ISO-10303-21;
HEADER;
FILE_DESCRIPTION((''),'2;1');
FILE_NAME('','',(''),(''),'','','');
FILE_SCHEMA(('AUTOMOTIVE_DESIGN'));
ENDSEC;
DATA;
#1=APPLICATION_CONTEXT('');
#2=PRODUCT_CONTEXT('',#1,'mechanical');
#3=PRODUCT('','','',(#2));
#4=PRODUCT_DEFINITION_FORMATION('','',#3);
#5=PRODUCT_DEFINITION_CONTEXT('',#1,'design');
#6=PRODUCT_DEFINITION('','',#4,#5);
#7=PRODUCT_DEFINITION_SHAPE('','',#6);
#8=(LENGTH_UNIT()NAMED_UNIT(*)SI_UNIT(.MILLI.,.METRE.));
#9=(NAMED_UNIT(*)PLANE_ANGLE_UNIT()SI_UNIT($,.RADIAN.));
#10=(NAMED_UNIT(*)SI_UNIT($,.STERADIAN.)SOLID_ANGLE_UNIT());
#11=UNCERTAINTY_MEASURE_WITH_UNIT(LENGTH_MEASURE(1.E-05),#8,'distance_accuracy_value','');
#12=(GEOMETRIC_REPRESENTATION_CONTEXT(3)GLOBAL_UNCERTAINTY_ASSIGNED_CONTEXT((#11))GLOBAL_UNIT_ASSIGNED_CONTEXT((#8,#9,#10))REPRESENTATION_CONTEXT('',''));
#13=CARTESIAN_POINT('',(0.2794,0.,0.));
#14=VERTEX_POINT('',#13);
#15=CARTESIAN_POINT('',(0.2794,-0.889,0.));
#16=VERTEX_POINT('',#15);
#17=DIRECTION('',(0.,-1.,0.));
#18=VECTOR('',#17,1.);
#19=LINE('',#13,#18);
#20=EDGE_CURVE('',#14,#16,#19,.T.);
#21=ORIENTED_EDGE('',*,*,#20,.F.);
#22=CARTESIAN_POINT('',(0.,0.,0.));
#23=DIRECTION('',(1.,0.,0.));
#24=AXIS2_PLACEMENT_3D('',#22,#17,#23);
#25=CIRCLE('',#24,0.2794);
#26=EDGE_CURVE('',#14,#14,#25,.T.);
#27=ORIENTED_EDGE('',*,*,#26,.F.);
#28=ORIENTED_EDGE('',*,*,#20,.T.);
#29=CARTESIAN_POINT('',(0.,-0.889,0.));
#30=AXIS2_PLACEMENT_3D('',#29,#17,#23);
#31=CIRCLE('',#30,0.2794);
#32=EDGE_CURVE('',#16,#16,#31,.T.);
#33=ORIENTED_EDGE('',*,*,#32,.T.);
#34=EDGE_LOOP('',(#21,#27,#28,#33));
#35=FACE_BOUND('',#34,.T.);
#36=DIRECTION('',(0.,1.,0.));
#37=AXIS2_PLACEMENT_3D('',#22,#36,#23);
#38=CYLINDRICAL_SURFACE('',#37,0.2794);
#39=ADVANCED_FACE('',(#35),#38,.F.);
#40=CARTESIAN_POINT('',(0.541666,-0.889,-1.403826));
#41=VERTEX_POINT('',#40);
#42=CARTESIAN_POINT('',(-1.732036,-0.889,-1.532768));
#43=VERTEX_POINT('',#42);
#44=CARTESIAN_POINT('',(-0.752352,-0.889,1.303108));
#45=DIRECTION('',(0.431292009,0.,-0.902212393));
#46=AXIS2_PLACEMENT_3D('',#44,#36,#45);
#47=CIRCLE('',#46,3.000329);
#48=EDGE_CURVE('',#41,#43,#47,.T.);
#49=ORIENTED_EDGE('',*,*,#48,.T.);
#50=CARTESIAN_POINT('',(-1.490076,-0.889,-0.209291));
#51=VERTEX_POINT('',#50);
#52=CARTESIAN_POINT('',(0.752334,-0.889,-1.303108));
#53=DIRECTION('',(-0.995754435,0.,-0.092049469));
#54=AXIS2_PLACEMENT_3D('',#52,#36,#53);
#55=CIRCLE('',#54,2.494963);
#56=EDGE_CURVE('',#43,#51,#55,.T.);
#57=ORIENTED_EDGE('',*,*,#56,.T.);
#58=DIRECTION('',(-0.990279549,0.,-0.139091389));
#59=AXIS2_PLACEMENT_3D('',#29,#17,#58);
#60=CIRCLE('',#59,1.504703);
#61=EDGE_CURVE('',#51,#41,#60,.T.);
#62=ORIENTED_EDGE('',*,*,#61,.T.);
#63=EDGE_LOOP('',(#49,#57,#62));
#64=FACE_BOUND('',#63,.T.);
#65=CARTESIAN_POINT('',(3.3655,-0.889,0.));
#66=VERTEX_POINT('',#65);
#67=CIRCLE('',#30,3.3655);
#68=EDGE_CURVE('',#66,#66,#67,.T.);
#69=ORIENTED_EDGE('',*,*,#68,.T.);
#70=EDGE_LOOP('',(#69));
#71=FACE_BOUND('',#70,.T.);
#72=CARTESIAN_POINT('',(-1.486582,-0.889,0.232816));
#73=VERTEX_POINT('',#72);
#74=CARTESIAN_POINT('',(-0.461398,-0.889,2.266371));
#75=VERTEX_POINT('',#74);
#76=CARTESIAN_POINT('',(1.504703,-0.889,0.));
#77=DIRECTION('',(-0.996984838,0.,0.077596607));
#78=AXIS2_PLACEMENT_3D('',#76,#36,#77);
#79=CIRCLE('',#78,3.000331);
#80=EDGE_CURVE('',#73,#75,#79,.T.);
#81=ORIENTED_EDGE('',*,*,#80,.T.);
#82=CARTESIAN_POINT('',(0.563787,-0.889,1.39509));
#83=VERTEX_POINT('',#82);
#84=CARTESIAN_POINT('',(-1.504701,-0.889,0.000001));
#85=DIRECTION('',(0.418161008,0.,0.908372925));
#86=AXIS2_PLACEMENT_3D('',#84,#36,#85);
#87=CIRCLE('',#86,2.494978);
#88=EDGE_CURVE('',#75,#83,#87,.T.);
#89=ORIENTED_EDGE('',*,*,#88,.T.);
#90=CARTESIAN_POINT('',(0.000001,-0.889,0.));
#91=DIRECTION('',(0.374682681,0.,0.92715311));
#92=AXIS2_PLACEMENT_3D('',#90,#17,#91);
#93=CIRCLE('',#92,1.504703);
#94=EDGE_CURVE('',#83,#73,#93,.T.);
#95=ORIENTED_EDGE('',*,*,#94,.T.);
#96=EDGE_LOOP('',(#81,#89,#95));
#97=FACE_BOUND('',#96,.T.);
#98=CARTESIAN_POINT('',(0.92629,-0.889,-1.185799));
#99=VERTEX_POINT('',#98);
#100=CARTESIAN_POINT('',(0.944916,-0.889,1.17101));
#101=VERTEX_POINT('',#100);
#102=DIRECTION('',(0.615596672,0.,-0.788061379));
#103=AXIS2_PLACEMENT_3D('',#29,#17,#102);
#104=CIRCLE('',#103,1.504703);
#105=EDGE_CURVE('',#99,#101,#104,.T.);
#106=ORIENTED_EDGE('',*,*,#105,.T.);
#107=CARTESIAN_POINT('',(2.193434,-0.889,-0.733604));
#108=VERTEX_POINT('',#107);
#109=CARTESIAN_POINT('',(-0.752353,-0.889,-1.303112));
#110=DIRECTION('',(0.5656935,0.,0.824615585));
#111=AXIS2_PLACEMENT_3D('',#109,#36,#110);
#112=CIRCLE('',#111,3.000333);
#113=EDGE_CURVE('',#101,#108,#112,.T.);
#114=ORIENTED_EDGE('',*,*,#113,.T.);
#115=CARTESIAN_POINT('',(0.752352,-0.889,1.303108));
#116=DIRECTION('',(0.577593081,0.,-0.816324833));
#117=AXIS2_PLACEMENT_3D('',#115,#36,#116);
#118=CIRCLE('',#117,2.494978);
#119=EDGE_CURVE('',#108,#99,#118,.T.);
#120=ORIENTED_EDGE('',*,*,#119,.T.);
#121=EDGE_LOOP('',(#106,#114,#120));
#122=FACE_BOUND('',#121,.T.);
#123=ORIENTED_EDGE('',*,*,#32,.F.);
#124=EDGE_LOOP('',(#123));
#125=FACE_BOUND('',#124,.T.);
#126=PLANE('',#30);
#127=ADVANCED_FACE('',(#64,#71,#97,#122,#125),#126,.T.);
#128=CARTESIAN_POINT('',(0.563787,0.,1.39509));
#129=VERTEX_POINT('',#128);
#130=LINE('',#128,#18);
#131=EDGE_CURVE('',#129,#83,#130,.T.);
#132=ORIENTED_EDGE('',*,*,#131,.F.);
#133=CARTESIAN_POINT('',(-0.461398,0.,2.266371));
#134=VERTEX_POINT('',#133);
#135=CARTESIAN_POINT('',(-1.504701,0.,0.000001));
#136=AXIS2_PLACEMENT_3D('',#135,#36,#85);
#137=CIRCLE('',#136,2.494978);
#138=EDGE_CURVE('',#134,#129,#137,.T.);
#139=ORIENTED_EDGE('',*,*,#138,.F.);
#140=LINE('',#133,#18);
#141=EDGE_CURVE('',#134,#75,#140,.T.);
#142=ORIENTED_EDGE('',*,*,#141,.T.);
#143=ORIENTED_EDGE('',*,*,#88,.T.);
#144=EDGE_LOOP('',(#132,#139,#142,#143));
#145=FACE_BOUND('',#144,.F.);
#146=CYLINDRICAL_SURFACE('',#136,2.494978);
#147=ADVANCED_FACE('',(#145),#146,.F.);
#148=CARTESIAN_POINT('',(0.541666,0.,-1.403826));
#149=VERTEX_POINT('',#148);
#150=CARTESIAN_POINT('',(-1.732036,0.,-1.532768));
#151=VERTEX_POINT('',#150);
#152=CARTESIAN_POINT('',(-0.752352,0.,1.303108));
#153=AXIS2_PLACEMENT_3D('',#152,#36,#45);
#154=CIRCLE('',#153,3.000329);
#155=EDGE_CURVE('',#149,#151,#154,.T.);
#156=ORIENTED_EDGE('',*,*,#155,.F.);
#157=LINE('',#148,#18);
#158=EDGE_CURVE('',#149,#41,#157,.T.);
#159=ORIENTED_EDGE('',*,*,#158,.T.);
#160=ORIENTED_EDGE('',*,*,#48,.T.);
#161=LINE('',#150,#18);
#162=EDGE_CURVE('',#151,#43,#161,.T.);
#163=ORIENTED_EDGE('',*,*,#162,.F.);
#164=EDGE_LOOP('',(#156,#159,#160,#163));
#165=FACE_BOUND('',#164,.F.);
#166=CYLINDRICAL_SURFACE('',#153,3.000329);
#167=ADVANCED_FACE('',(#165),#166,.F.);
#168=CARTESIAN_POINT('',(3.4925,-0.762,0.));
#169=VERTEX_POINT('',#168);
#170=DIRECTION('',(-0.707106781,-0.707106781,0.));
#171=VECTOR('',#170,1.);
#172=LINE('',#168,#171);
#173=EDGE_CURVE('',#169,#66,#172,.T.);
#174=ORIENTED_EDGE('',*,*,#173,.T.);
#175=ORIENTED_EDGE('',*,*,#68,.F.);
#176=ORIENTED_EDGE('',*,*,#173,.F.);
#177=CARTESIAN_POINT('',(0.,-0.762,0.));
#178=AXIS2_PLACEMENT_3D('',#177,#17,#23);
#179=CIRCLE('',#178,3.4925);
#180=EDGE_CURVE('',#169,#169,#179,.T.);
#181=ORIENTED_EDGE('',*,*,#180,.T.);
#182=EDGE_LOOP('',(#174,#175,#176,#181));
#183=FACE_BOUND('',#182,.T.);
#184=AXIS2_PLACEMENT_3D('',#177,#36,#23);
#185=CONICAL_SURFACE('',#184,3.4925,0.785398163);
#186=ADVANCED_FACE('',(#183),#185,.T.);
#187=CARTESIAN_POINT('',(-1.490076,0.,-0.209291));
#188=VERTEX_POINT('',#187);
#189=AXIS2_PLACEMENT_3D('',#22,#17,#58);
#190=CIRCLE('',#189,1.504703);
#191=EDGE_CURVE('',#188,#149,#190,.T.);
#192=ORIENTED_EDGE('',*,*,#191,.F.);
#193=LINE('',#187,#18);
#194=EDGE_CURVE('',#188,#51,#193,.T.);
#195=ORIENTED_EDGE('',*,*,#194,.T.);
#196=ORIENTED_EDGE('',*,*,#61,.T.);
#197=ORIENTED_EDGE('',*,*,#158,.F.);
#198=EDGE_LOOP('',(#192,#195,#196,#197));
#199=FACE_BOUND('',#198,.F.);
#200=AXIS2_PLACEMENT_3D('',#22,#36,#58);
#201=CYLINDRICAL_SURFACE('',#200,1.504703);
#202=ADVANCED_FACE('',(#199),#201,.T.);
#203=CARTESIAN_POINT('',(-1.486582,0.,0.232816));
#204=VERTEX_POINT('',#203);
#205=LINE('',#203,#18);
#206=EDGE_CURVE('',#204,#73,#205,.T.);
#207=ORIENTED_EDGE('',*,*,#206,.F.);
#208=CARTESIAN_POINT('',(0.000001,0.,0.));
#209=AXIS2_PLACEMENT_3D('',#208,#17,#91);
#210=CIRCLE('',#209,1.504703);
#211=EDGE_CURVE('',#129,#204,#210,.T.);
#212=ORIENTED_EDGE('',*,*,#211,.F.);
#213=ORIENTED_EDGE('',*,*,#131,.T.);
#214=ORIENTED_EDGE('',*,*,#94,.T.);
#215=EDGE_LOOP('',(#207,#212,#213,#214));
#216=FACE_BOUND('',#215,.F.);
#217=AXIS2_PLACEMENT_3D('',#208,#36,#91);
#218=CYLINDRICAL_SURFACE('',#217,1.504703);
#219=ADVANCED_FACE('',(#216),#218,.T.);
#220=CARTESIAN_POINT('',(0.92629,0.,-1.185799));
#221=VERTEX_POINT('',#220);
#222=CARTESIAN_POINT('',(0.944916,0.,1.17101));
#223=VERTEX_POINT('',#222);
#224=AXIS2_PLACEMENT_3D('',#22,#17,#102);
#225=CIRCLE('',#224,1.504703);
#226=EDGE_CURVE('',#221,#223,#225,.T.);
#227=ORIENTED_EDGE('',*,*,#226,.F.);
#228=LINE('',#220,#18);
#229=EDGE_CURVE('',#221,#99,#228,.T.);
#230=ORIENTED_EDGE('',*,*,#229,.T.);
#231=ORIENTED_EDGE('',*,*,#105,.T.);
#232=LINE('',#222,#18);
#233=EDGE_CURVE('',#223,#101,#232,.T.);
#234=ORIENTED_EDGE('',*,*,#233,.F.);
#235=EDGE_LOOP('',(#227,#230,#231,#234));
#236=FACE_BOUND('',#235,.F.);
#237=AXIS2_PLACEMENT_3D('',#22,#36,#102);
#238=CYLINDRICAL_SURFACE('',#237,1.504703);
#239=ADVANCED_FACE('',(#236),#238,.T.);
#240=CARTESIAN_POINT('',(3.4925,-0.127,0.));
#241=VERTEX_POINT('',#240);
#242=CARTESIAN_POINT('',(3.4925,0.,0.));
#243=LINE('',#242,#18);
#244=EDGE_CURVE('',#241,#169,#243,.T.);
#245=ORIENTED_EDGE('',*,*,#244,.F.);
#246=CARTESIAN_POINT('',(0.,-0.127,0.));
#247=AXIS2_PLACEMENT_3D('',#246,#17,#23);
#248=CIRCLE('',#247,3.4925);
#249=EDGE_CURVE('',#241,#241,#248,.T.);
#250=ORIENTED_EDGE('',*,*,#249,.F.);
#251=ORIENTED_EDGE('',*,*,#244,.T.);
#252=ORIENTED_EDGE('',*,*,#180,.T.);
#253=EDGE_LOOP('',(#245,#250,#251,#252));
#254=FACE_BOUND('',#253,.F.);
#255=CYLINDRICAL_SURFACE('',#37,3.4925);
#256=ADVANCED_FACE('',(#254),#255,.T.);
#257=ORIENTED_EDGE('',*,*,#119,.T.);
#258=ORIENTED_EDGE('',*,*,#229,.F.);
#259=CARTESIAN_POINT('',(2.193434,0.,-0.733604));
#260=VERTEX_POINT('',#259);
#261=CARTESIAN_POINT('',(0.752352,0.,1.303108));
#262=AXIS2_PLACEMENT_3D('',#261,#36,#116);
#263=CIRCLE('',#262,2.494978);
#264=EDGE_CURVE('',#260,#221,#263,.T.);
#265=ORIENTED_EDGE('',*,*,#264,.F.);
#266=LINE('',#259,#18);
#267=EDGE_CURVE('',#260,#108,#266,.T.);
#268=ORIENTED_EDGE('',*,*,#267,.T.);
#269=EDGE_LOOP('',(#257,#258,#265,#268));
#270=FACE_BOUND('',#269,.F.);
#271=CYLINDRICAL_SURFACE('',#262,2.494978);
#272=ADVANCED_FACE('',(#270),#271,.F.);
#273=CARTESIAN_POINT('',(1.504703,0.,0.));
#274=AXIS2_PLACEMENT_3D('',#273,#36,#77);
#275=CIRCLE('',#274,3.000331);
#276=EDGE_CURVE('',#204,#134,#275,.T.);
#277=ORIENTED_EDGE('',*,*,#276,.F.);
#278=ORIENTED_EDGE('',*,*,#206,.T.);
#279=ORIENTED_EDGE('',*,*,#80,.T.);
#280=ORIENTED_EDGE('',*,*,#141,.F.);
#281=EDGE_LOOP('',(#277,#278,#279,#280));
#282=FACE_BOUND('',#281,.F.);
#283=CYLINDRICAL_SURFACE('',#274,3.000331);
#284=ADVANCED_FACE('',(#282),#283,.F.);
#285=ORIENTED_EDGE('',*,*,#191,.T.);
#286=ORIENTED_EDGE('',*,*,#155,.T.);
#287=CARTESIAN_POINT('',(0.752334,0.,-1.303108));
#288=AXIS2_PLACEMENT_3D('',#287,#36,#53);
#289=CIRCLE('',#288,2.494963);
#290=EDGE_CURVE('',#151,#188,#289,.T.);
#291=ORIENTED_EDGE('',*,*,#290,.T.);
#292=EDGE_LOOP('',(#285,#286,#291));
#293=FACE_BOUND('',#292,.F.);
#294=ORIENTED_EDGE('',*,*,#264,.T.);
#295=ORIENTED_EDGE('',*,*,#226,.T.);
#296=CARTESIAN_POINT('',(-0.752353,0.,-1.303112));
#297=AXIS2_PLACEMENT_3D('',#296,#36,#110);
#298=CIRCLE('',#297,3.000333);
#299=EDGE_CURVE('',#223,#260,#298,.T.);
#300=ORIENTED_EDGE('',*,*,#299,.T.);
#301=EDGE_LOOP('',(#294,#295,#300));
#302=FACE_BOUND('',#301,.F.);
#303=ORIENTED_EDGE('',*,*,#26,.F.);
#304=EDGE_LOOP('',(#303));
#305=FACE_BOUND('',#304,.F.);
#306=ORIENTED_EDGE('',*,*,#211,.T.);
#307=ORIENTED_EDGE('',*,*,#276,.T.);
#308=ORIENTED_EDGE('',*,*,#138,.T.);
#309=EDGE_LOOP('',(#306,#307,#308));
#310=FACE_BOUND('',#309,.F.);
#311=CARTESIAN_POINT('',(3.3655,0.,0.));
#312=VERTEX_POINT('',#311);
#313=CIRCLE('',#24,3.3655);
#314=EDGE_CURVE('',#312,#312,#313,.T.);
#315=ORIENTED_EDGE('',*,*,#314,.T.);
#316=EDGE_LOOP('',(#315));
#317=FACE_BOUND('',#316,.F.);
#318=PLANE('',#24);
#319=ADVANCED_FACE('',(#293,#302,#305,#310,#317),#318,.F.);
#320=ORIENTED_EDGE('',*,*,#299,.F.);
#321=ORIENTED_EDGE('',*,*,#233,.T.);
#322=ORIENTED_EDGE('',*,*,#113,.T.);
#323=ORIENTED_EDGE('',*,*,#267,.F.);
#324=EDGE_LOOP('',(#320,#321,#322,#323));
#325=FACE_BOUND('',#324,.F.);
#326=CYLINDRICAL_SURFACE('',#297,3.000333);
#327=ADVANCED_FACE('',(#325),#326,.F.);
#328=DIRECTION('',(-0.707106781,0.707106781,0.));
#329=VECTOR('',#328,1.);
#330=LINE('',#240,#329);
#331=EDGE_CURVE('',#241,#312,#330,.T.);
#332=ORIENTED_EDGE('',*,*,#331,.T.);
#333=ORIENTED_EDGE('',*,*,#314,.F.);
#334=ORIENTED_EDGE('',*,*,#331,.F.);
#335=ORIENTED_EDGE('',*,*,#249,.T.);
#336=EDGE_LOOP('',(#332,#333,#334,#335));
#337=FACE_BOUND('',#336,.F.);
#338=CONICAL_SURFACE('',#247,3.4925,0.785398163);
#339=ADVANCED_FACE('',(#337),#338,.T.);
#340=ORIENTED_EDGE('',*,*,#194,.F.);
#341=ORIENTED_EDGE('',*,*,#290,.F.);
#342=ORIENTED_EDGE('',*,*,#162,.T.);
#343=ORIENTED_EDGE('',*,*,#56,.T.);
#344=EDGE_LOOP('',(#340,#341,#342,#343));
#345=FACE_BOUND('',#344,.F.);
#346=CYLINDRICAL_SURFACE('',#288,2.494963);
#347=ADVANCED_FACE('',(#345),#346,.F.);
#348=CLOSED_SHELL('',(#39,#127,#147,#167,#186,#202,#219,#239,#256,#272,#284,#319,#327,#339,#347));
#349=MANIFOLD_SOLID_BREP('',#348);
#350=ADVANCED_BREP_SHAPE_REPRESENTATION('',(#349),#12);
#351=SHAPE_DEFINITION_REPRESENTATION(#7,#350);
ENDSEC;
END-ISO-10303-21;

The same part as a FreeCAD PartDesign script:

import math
import FreeCAD as App
import Part
import Sketcher
from FreeCAD import Vector
Q = App.Units.Quantity


def edges_at(feature, points):
    """Names of the edges that pass closest to the given points."""
    edges = feature.Shape.Edges
    near = lambda p: min(range(len(edges)), key=lambda i: edges[i].distToShape(Part.Vertex(*p))[0])
    return sorted({f"Edge{near(p) + 1}" for p in points})

doc = App.newDocument("Part")
body = doc.addObject("PartDesign::Body", "Body")

# Sketch on XZ plane
sketch1 = doc.addObject("Sketcher::SketchObject", "Sketch")
body.addObject(sketch1)
sketch1.AttachmentSupport = (doc.XZ_Plane, [""])
sketch1.MapMode = "FlatFace"
sketch1.addGeometry([
    Part.Circle(Vector(0, 0, 0), Vector(0, 0, 1), 3.4925),  # 0
    Part.ArcOfCircle(Part.Circle(Vector(0, 0, 0), Vector(0, 0, 1), 1.504703), math.radians(-172.004728), math.radians(-68.90091)),  # 1
    Part.ArcOfCircle(Part.Circle(Vector(-0.752352, 1.303108, 0), Vector(0, 0, 1), 3.000329), math.radians(-109.05803), math.radians(-64.450418)),  # 2
    Part.ArcOfCircle(Part.Circle(Vector(0.752334, -1.303108, 0), Vector(0, 0, 1), 2.494963), math.radians(153.997516), math.radians(185.281523)),  # 3
    Part.Circle(Vector(0, 0, 0), Vector(0, 0, 1), 0.2794),  # 4
    Part.ArcOfCircle(Part.Circle(Vector(0, 0, 0), Vector(0, 0, 1), 1.504703), math.radians(-52.004712), math.radians(51.099107)),  # 5
    Part.ArcOfCircle(Part.Circle(Vector(-0.752353, -1.303112, 0), Vector(0, 0, 1), 3.000333), math.radians(10.941977), math.radians(55.549537)),  # 6
    Part.ArcOfCircle(Part.Circle(Vector(0.752352, 1.303108, 0), Vector(0, 0, 1), 2.494978), math.radians(-86.002371), math.radians(-54.71857)),  # 7
    Part.ArcOfCircle(Part.Circle(Vector(1.504703, 0, 0), Vector(0, 0, 1), 3.000331), math.radians(130.941989), math.radians(175.549568)),  # 8
    Part.ArcOfCircle(Part.Circle(Vector(-1.504701, 0.000001, 0), Vector(0, 0, 1), 2.494978), math.radians(33.997659), math.radians(65.281461)),  # 9
    Part.ArcOfCircle(Part.Circle(Vector(0.000001, 0, 0), Vector(0, 0, 1), 1.504703), math.radians(67.995298), math.radians(171.099112)),  # 10
], False)
sketch1.addConstraint([
    Sketcher.Constraint("Coincident", 1, 2, 2, 2),
    Sketcher.Constraint("Coincident", 2, 1, 3, 2),
    Sketcher.Constraint("Coincident", 3, 1, 1, 1),
    Sketcher.Constraint("Coincident", 5, 2, 6, 2),
    Sketcher.Constraint("Coincident", 6, 1, 7, 2),
    Sketcher.Constraint("Coincident", 7, 1, 5, 1),
    Sketcher.Constraint("Coincident", 8, 1, 9, 2),
    Sketcher.Constraint("Coincident", 9, 1, 10, 1),
    Sketcher.Constraint("Coincident", 10, 2, 8, 2),
    Sketcher.Constraint("Coincident", 0, 3, -1, 1),
    Sketcher.Constraint("Coincident", 1, 3, -1, 1),
    Sketcher.Constraint("Coincident", 4, 3, -1, 1),
    Sketcher.Constraint("Coincident", 5, 3, -1, 1),
    Sketcher.Constraint("Coincident", 10, 3, -1, 1),
    Sketcher.Constraint("PointOnObject", 8, 3, -1),
    Sketcher.Constraint("PointOnObject", 9, 3, -1),
    Sketcher.Constraint("Diameter", 0, Q("0.275 in")),
    Sketcher.Constraint("Diameter", 4, Q("0.022 in")),
    Sketcher.Constraint("Radius", 2, 3.000329),
    Sketcher.Constraint("Radius", 8, 3.000331),
    Sketcher.Constraint("Radius", 1, 1.504703),
    Sketcher.Constraint("Radius", 3, 2.494963),
    Sketcher.Constraint("Radius", 5, 1.504703),
    Sketcher.Constraint("Radius", 6, 3.000333),
    Sketcher.Constraint("Radius", 7, 2.494978),
    Sketcher.Constraint("Radius", 9, 2.494978),
    Sketcher.Constraint("Radius", 10, 1.504703),
    Sketcher.Constraint("DistanceX", 9, 3, -1, 1, 1.504701),
    Sketcher.Constraint("DistanceY", 7, 1, -1, 1, 1.185799),
    Sketcher.Constraint("DistanceX", 8, 1, -1, 1, 0.461398),
    Sketcher.Constraint("DistanceY", 5, 2, 7, 3, 0.132098),
    Sketcher.Constraint("DistanceX", 3, 3, 6, 1, 1.4411),
    Sketcher.Constraint("DistanceX", 2, 3, -1, 1, 0.752352),
    Sketcher.Constraint("DistanceY", 6, 3, -1, 1, 1.303112),
    Sketcher.Constraint("DistanceY", -1, 1, 7, 3, 1.303108),
    Sketcher.Constraint("DistanceY", 2, 1, -1, 1, 1.532768),
    Sketcher.Constraint("DistanceY", 3, 1, -1, 1, 0.209291),
])
pad1 = doc.addObject("PartDesign::Pad", "Pad")
body.addObject(pad1)
pad1.Profile = sketch1
pad1.Length = Q("0.035 in")
doc.recompute()

chamfer = doc.addObject("PartDesign::Chamfer", "Chamfer")
body.addObject(chamfer)
chamfer.Base = (pad1, edges_at(pad1, [(-3.493, -0.889, 0), (-3.493, 0, 0)]))
chamfer.Size = Q("0.005 in")

doc.recompute()
